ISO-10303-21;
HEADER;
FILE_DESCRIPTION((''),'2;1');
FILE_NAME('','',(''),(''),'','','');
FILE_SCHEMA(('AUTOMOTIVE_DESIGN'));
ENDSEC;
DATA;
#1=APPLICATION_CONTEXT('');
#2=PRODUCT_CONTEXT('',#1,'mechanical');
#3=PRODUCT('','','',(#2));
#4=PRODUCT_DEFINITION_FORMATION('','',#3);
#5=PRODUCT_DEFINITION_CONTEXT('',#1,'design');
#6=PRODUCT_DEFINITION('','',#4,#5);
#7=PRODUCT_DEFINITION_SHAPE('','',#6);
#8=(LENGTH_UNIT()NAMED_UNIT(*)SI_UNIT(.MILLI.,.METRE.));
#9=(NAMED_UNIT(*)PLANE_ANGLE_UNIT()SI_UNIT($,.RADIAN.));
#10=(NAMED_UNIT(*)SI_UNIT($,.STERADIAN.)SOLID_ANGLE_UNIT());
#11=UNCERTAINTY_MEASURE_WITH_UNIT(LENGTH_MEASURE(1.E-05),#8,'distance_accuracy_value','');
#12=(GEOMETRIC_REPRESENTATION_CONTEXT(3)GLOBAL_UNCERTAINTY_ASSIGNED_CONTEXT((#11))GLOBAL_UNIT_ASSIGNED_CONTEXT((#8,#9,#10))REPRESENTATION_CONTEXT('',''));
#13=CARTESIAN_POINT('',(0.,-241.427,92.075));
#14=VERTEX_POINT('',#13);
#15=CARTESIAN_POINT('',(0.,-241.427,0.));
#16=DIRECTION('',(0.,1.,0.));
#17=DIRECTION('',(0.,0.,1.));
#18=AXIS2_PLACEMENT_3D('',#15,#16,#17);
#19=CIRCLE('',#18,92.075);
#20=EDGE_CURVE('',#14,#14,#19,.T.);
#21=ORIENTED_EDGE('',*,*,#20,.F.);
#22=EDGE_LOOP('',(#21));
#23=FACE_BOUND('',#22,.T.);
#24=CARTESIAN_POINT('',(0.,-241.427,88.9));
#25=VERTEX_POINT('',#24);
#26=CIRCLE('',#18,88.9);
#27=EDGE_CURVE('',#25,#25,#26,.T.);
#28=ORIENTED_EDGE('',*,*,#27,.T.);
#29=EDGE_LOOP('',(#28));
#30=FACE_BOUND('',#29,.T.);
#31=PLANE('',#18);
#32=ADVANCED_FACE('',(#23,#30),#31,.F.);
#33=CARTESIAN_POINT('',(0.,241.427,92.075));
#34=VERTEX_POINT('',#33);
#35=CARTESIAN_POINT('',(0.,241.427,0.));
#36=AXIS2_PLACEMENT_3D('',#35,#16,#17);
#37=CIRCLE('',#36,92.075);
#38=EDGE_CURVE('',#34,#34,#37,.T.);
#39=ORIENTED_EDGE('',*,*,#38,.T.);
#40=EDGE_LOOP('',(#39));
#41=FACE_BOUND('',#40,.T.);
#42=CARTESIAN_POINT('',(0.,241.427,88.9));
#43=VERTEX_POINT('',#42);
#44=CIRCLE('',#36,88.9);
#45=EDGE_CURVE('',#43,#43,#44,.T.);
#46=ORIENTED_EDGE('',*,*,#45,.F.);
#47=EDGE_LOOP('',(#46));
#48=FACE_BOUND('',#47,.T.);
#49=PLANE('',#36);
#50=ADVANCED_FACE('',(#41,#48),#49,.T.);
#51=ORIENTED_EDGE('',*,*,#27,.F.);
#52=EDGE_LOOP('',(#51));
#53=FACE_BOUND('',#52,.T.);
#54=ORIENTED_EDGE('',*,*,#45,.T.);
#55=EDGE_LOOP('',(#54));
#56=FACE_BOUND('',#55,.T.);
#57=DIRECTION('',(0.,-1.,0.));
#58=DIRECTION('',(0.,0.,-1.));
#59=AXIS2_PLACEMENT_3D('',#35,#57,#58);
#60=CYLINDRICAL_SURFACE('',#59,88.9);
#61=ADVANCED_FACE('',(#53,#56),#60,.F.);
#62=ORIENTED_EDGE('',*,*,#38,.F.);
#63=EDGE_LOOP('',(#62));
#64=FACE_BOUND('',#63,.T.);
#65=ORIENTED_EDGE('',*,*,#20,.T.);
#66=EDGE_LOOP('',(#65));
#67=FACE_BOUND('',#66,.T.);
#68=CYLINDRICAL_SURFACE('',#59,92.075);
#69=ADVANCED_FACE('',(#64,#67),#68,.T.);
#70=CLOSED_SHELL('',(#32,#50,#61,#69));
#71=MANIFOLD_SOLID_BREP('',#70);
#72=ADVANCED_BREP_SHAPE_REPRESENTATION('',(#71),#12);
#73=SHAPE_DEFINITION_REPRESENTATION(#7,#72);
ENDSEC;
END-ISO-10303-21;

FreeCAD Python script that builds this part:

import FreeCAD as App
import Part
import Sketcher
from FreeCAD import Vector
Q = App.Units.Quantity

doc = App.newDocument("Part")
body = doc.addObject("PartDesign::Body", "Body")

# Sketch on XZ plane
sketch1 = doc.addObject("Sketcher::SketchObject", "Sketch")
body.addObject(sketch1)
sketch1.AttachmentSupport = (doc.XZ_Plane, [""])
sketch1.MapMode = "FlatFace"
sketch1.addGeometry(Part.Circle(Vector(0, 0, 0), Vector(0, 0, 1), 92), False)
sketch1.addGeometry(Part.Circle(Vector(0, 0, 0), Vector(0, 0, 1), 89), False)
sketch1.addConstraint(Sketcher.Constraint("Coincident", 0, 3, -1, 1))
sketch1.addConstraint(Sketcher.Constraint("Coincident", 1, 3, -1, 1))
sketch1.addConstraint(Sketcher.Constraint("Diameter", 1, Q("7 in")))
sketch1.addConstraint(Sketcher.Constraint("Diameter", 0, Q("7.25 in")))
pad1 = doc.addObject("PartDesign::Pad", "Pad")
body.addObject(pad1)
pad1.Profile = sketch1
pad1.Length = Q("19.01 in")
pad1.Midplane = True

doc.recompute()
